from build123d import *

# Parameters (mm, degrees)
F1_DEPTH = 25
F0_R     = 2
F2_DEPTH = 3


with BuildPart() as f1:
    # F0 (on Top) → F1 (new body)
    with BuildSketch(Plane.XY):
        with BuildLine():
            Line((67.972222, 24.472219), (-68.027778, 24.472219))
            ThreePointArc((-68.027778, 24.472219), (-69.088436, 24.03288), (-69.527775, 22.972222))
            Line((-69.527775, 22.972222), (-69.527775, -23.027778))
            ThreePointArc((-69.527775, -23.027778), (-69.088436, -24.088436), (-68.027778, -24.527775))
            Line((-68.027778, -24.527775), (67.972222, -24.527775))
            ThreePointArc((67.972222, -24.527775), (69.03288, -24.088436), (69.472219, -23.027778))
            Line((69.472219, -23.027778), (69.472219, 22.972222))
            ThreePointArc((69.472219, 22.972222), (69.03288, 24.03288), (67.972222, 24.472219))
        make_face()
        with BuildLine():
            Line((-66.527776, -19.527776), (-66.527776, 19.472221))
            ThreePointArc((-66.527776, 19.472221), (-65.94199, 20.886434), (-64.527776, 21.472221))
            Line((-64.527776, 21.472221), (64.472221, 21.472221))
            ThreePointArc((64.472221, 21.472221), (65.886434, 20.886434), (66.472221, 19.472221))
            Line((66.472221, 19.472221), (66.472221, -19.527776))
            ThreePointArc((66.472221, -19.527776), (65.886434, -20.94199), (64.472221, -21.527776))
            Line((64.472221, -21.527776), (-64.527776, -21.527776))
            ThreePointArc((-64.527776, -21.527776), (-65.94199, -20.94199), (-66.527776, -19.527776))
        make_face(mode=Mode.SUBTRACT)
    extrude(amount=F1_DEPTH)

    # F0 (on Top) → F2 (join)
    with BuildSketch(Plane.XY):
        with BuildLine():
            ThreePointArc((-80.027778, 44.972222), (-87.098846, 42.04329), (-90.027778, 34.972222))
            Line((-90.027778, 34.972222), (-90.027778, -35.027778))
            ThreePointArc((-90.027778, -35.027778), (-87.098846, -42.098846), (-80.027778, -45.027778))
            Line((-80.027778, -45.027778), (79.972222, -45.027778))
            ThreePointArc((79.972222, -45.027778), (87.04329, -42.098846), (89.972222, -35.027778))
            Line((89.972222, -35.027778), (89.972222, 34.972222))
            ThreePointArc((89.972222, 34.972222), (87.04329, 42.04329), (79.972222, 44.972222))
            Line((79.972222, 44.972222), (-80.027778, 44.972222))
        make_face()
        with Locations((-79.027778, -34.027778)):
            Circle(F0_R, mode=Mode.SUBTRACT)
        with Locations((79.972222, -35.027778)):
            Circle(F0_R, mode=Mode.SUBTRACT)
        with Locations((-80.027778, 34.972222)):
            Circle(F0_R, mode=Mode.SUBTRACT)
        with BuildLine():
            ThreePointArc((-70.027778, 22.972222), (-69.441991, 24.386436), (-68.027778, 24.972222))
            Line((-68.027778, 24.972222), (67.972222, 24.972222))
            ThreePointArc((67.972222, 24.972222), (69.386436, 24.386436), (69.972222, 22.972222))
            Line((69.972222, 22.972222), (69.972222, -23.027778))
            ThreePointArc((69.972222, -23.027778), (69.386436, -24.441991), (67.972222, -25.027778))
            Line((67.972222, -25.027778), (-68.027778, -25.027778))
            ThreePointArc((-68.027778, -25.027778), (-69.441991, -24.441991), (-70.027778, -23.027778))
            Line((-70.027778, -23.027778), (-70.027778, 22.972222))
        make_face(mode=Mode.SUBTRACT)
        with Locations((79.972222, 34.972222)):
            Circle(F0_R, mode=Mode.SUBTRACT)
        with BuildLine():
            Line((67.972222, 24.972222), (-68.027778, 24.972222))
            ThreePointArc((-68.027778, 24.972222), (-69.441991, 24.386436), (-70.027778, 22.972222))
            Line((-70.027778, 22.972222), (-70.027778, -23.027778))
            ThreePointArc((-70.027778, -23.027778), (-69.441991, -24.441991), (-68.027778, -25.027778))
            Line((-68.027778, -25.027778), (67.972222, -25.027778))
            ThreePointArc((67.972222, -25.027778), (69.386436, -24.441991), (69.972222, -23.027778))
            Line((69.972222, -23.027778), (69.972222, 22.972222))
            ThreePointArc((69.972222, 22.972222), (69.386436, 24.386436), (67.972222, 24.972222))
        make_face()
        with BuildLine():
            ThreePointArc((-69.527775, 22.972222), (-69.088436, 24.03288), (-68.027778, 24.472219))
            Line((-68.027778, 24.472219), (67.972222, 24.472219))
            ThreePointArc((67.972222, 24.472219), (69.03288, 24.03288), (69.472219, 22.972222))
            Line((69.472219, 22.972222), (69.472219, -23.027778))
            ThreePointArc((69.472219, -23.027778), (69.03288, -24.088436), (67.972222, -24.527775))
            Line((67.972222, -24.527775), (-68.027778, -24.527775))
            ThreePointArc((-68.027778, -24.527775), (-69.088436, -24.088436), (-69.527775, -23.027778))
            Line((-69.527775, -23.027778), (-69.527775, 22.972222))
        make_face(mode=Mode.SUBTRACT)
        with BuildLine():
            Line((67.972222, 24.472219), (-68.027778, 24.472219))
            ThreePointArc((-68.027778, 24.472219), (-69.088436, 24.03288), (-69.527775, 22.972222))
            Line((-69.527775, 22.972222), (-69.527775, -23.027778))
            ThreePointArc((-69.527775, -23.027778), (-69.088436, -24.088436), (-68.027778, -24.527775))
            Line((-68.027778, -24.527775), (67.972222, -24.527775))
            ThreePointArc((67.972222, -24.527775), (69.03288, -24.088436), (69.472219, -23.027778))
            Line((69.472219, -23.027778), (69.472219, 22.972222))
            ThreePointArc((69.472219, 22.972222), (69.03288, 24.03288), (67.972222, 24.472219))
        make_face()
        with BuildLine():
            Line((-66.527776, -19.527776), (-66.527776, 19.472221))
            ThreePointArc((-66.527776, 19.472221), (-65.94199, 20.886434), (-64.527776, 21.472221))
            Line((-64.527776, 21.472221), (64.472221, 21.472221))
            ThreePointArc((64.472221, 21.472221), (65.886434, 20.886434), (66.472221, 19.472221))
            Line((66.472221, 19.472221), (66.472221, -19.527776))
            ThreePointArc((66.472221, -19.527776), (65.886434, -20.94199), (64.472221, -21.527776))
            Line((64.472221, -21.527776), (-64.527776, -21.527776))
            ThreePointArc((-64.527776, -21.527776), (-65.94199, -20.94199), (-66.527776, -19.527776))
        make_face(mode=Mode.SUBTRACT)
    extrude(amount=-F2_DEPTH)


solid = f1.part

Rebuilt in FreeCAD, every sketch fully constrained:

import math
import FreeCAD as App
import Part
import Sketcher

doc = App.newDocument("Part")
body = doc.addObject("PartDesign::Body", "Body")

sketch1 = doc.addObject("Sketcher::SketchObject", "Sketch")
body.addObject(sketch1)
sketch1.AttachmentSupport = (doc.XY_Plane, [""])
sketch1.MapMode = "FlatFace"
sketch1.addGeometry([
    Part.LineSegment(App.Vector(68, 24.5, 0), App.Vector(-68, 24.5, 0)),
    Part.ArcOfCircle(Part.Circle(App.Vector(-68, 23, 0), App.Vector(0, 0, 1), 1.5), math.radians(90), math.radians(180)),
    Part.LineSegment(App.Vector(-69.5, 23, 0), App.Vector(-69.5, -23, 0)),
    Part.ArcOfCircle(Part.Circle(App.Vector(-68, -23, 0), App.Vector(0, 0, 1), 1.5), math.radians(-180), math.radians(-90)),
    Part.LineSegment(App.Vector(-68, -24.5, 0), App.Vector(68, -24.5, 0)),
    Part.ArcOfCircle(Part.Circle(App.Vector(68, -23, 0), App.Vector(0, 0, 1), 1.5), math.radians(-90), math.radians(0)),
    Part.LineSegment(App.Vector(69.5, -23, 0), App.Vector(69.5, 23, 0)),
    Part.ArcOfCircle(Part.Circle(App.Vector(68, 23, 0), App.Vector(0, 0, 1), 1.5), math.radians(0), math.radians(90)),
    Part.ArcOfCircle(Part.Circle(App.Vector(-64.5, -19.5, 0), App.Vector(0, 0, 1), 2), math.radians(180), math.radians(270)),
    Part.LineSegment(App.Vector(-66.5, -19.5, 0), App.Vector(-66.5, 19.5, 0)),
    Part.ArcOfCircle(Part.Circle(App.Vector(-64.5, 19.5, 0), App.Vector(0, 0, 1), 2), math.radians(90), math.radians(180)),
    Part.LineSegment(App.Vector(-64.5, 21.5, 0), App.Vector(64.5, 21.5, 0)),
    Part.ArcOfCircle(Part.Circle(App.Vector(64.5, 19.5, 0), App.Vector(0, 0, 1), 2), math.radians(0), math.radians(90)),
    Part.LineSegment(App.Vector(66.5, 19.5, 0), App.Vector(66.5, -19.5, 0)),
    Part.ArcOfCircle(Part.Circle(App.Vector(64.5, -19.5, 0), App.Vector(0, 0, 1), 2), math.radians(-90), math.radians(0)),
    Part.LineSegment(App.Vector(64.5, -21.5, 0), App.Vector(-64.5, -21.5, 0)),
], False)
sketch1.addConstraint([
    Sketcher.Constraint("Tangent", 0, 2, 1, 1),
    Sketcher.Constraint("Tangent", 1, 2, 2, 1),
    Sketcher.Constraint("Tangent", 2, 2, 3, 1),
    Sketcher.Constraint("Tangent", 3, 2, 4, 1),
    Sketcher.Constraint("Tangent", 4, 2, 5, 1),
    Sketcher.Constraint("Tangent", 5, 2, 6, 1),
    Sketcher.Constraint("Tangent", 6, 2, 7, 1),
    Sketcher.Constraint("Tangent", 7, 2, 0, 1),
    Sketcher.Constraint("Tangent", 8, 1, 9, 1),
    Sketcher.Constraint("Tangent", 9, 2, 10, 2),
    Sketcher.Constraint("Tangent", 10, 1, 11, 1),
    Sketcher.Constraint("Tangent", 11, 2, 12, 2),
    Sketcher.Constraint("Tangent", 12, 1, 13, 1),
    Sketcher.Constraint("Tangent", 13, 2, 14, 2),
    Sketcher.Constraint("Tangent", 14, 1, 15, 1),
    Sketcher.Constraint("Tangent", 15, 2, 8, 2),
    Sketcher.Constraint("Horizontal", 0),
    Sketcher.Constraint("Vertical", 2),
    Sketcher.Constraint("Horizontal", 4),
    Sketcher.Constraint("Vertical", 6),
    Sketcher.Constraint("Vertical", 9),
    Sketcher.Constraint("Horizontal", 11),
    Sketcher.Constraint("Vertical", 13),
    Sketcher.Constraint("Horizontal", 15),
    Sketcher.Constraint("Equal", 1, 3),
    Sketcher.Constraint("Equal", 3, 5),
    Sketcher.Constraint("Equal", 5, 7),
    Sketcher.Constraint("Equal", 8, 10),
    Sketcher.Constraint("Equal", 10, 12),
    Sketcher.Constraint("Equal", 12, 14),
    Sketcher.Constraint("Radius", 8, 1.999999),
    Sketcher.Constraint("DistanceX", 0, 2, 0, 1, 136.0),
    Sketcher.Constraint("DistanceY", 2, 2, 2, 1, 46.0),
    Sketcher.Constraint("DistanceY", 8, 3, 10, 3, 38.999998),
    Sketcher.Constraint("DistanceX", 8, 3, 14, 3, 128.999998),
    Sketcher.Constraint("DistanceY", 10, 3, 0, 2, 4.999998),
    Sketcher.Constraint("DistanceX", 1, 2, 10, 3, 4.999999),
    Sketcher.Constraint("DistanceY", 4, 2, 14, 3, 4.999999),
    Sketcher.Constraint("DistanceY", -1, 1, 1, 3, 22.972222),
    Sketcher.Constraint("DistanceX", -1, 1, 5, 3, 67.972222),
])
pad1 = doc.addObject("PartDesign::Pad", "Pad")
body.addObject(pad1)
pad1.Profile = sketch1
pad1.Length = 25

sketch2 = doc.addObject("Sketcher::SketchObject", "Sketch001")
body.addObject(sketch2)
sketch2.AttachmentSupport = (doc.XY_Plane, [""])
sketch2.MapMode = "FlatFace"
sketch2.addGeometry([
    Part.ArcOfCircle(Part.Circle(App.Vector(-80, 35, 0), App.Vector(0, 0, 1), 10), math.radians(90), math.radians(180)),
    Part.LineSegment(App.Vector(-90, 35, 0), App.Vector(-90, -35, 0)),
    Part.ArcOfCircle(Part.Circle(App.Vector(-80, -35, 0), App.Vector(0, 0, 1), 10), math.radians(180), math.radians(270)),
    Part.LineSegment(App.Vector(-80, -45, 0), App.Vector(80, -45, 0)),
    Part.ArcOfCircle(Part.Circle(App.Vector(80, -35, 0), App.Vector(0, 0, 1), 10), math.radians(-90), math.radians(0)),
    Part.LineSegment(App.Vector(90, -35, 0), App.Vector(90, 35, 0)),
    Part.ArcOfCircle(Part.Circle(App.Vector(80, 35, 0), App.Vector(0, 0, 1), 10), math.radians(0), math.radians(90)),
    Part.LineSegment(App.Vector(80, 45, 0), App.Vector(-80, 45, 0)),
    Part.Circle(App.Vector(-79, -34, 0), App.Vector(0, 0, 1), 2),
    Part.Circle(App.Vector(80, -35, 0), App.Vector(0, 0, 1), 2),
    Part.Circle(App.Vector(-80, 35, 0), App.Vector(0, 0, 1), 2),
    Part.ArcOfCircle(Part.Circle(App.Vector(-64.5, -19.5, 0), App.Vector(0, 0, 1), 2), math.radians(180), math.radians(270)),
    Part.LineSegment(App.Vector(-66.5, -19.5, 0), App.Vector(-66.5, 19.5, 0)),
    Part.ArcOfCircle(Part.Circle(App.Vector(-64.5, 19.5, 0), App.Vector(0, 0, 1), 2), math.radians(90), math.radians(180)),
    Part.LineSegment(App.Vector(-64.5, 21.5, 0), App.Vector(64.5, 21.5, 0)),
    Part.ArcOfCircle(Part.Circle(App.Vector(64.5, 19.5, 0), App.Vector(0, 0, 1), 2), math.radians(0), math.radians(90)),
    Part.LineSegment(App.Vector(66.5, 19.5, 0), App.Vector(66.5, -19.5, 0)),
    Part.ArcOfCircle(Part.Circle(App.Vector(64.5, -19.5, 0), App.Vector(0, 0, 1), 2), math.radians(-90), math.radians(0)),
    Part.LineSegment(App.Vector(64.5, -21.5, 0), App.Vector(-64.5, -21.5, 0)),
    Part.Circle(App.Vector(80, 35, 0), App.Vector(0, 0, 1), 2),
], False)
sketch2.addConstraint([
    Sketcher.Constraint("Tangent", 0, 2, 1, 1),
    Sketcher.Constraint("Tangent", 1, 2, 2, 1),
    Sketcher.Constraint("Tangent", 2, 2, 3, 1),
    Sketcher.Constraint("Tangent", 3, 2, 4, 1),
    Sketcher.Constraint("Tangent", 4, 2, 5, 1),
    Sketcher.Constraint("Tangent", 5, 2, 6, 1),
    Sketcher.Constraint("Tangent", 6, 2, 7, 1),
    Sketcher.Constraint("Tangent", 7, 2, 0, 1),
    Sketcher.Constraint("Tangent", 11, 1, 12, 1),
    Sketcher.Constraint("Tangent", 12, 2, 13, 2),
    Sketcher.Constraint("Tangent", 13, 1, 14, 1),
    Sketcher.Constraint("Tangent", 14, 2, 15, 2),
    Sketcher.Constraint("Tangent", 15, 1, 16, 1),
    Sketcher.Constraint("Tangent", 16, 2, 17, 2),
    Sketcher.Constraint("Tangent", 17, 1, 18, 1),
    Sketcher.Constraint("Tangent", 18, 2, 11, 2),
    Sketcher.Constraint("Vertical", 1),
    Sketcher.Constraint("Horizontal", 3),
    Sketcher.Constraint("Vertical", 5),
    Sketcher.Constraint("Horizontal", 7),
    Sketcher.Constraint("Vertical", 12),
    Sketcher.Constraint("Horizontal", 14),
    Sketcher.Constraint("Vertical", 16),
    Sketcher.Constraint("Horizontal", 18),
    Sketcher.Constraint("Coincident", 9, 3, 4, 3),
    Sketcher.Constraint("Coincident", 10, 3, 0, 3),
    Sketcher.Constraint("Coincident", 19, 3, 6, 3),
    Sketcher.Constraint("Equal", 0, 2),
    Sketcher.Constraint("Equal", 2, 4),
    Sketcher.Constraint("Equal", 4, 6),
    Sketcher.Constraint("Equal", 8, 9),
    Sketcher.Constraint("Equal", 9, 10),
    Sketcher.Constraint("Equal", 10, 11),
    Sketcher.Constraint("Equal", 11, 13),
    Sketcher.Constraint("Equal", 13, 15),
    Sketcher.Constraint("Equal", 15, 17),
    Sketcher.Constraint("Equal", 17, 19),
    Sketcher.Constraint("Diameter", 8, 4.0),
    Sketcher.Constraint("Radius", 0, 9.999999),
    Sketcher.Constraint("DistanceX", 3, 1, 3, 2, 160.0),
    Sketcher.Constraint("DistanceY", 1, 2, 1, 1, 70.0),
    Sketcher.Constraint("DistanceX", 2, 3, 8, 3, 1.000001),
    Sketcher.Constraint("DistanceY", 2, 3, 8, 3, 1.000001),
    Sketcher.Constraint("DistanceY", 11, 3, 13, 3, 38.999998),
    Sketcher.Constraint("DistanceX", 11, 3, 17, 3, 128.999998),
    Sketcher.Constraint("DistanceX", 8, 3, 11, 3, 14.500001),
    Sketcher.Constraint("DistanceY", 8, 3, 11, 3, 14.500001),
    Sketcher.Constraint("DistanceX", 0, 3, -1, 1, 80.027779),
    Sketcher.Constraint("DistanceY", 2, 3, -1, 1, 35.027779),
])
pad2 = doc.addObject("PartDesign::Pad", "Pad001")
body.addObject(pad2)
pad2.Profile = sketch2
pad2.Length = 3
pad2.Reversed = True

doc.recompute()
